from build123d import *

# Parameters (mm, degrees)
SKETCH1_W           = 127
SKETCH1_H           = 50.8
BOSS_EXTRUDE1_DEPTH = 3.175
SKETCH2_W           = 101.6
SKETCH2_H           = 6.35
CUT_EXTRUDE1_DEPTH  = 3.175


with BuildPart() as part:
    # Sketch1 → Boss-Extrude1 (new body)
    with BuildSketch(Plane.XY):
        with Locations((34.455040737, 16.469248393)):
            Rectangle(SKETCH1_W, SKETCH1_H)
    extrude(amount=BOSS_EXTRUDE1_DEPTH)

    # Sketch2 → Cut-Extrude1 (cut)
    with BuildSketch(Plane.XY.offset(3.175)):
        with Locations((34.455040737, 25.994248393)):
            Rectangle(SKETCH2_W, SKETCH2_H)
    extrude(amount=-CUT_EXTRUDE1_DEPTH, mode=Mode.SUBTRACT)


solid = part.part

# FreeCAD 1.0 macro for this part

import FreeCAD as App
import Part
import Sketcher
Q = App.Units.Quantity

doc = App.newDocument("Part")
body = doc.addObject("PartDesign::Body", "Body")

# Sketch on XY plane
sketch1 = body.newObject("Sketcher::SketchObject", "Sketch")
sketch1.AttachmentSupport = (doc.getObject("XY_Plane"), [""])
sketch1.MapMode = "FlatFace"
sketch1.addGeometry(Part.LineSegment(App.Vector(-29.044959, 41.869248, 0), App.Vector(-29.044959, -8.930752, 0)), False)
sketch1.addGeometry(Part.LineSegment(App.Vector(-29.044959, -8.930752, 0), App.Vector(97.955041, -8.930752, 0)), False)
sketch1.addGeometry(Part.LineSegment(App.Vector(97.955041, -8.930752, 0), App.Vector(97.955041, 41.869248, 0)), False)
sketch1.addGeometry(Part.LineSegment(App.Vector(97.955041, 41.869248, 0), App.Vector(-29.044959, 41.869248, 0)), False)
sketch1.addConstraint(Sketcher.Constraint("Coincident", 0, 2, 1, 1))
sketch1.addConstraint(Sketcher.Constraint("Coincident", 1, 2, 2, 1))
sketch1.addConstraint(Sketcher.Constraint("Coincident", 2, 2, 3, 1))
sketch1.addConstraint(Sketcher.Constraint("Coincident", 3, 2, 0, 1))
sketch1.addConstraint(Sketcher.Constraint("Vertical", 0))
sketch1.addConstraint(Sketcher.Constraint("Horizontal", 1))
sketch1.addConstraint(Sketcher.Constraint("Vertical", 2))
sketch1.addConstraint(Sketcher.Constraint("Horizontal", 3))
sketch1.addConstraint(Sketcher.Constraint("DistanceX", 1, 1, 1, 2, Q("5 in")))
sketch1.addConstraint(Sketcher.Constraint("DistanceY", 0, 2, 0, 1, Q("2 in")))
sketch1.addConstraint(Sketcher.Constraint("DistanceX", 0, 2, -1, 1, Q("29.044959 mm")))
sketch1.addConstraint(Sketcher.Constraint("DistanceY", 0, 2, -1, 1, Q("8.930752 mm")))
pad1 = body.newObject("PartDesign::Pad", "Pad")
pad1.Profile = sketch1
pad1.Length = Q("0.125 in")

# Sketch on XY plane
sketch2 = body.newObject("Sketcher::SketchObject", "Sketch001")
sketch2.AttachmentSupport = (doc.getObject("XY_Plane"), [""])
sketch2.MapMode = "FlatFace"
sketch2.AttachmentOffset = App.Placement(App.Vector(0, 0, 0.125 * 25.4), App.Rotation())
sketch2.addGeometry(Part.LineSegment(App.Vector(-16.344959, 29.169248, 0), App.Vector(-16.344959, 22.819248, 0)), False)
sketch2.addGeometry(Part.LineSegment(App.Vector(-16.344959, 22.819248, 0), App.Vector(85.255041, 22.819248, 0)), False)
sketch2.addGeometry(Part.LineSegment(App.Vector(85.255041, 22.819248, 0), App.Vector(85.255041, 29.169248, 0)), False)
sketch2.addGeometry(Part.LineSegment(App.Vector(85.255041, 29.169248, 0), App.Vector(-16.344959, 29.169248, 0)), False)
sketch2.addConstraint(Sketcher.Constraint("Coincident", 0, 2, 1, 1))
sketch2.addConstraint(Sketcher.Constraint("Coincident", 1, 2, 2, 1))
sketch2.addConstraint(Sketcher.Constraint("Coincident", 2, 2, 3, 1))
sketch2.addConstraint(Sketcher.Constraint("Coincident", 3, 2, 0, 1))
sketch2.addConstraint(Sketcher.Constraint("Vertical", 0))
sketch2.addConstraint(Sketcher.Constraint("Horizontal", 1))
sketch2.addConstraint(Sketcher.Constraint("Vertical", 2))
sketch2.addConstraint(Sketcher.Constraint("Horizontal", 3))
sketch2.addConstraint(Sketcher.Constraint("DistanceX", 1, 1, 1, 2, Q("4 in")))
sketch2.addConstraint(Sketcher.Constraint("DistanceY", 0, 2, 0, 1, Q("0.25 in")))
sketch2.addConstraint(Sketcher.Constraint("DistanceX", 0, 2, -1, 1, Q("16.344959 mm")))
sketch2.addConstraint(Sketcher.Constraint("DistanceY", -1, 1, 0, 2, Q("22.819248 mm")))
pocket1 = body.newObject("PartDesign::Pocket", "Pocket")
pocket1.Profile = sketch2
pocket1.Length = Q("0.125 in")

doc.recompute()
